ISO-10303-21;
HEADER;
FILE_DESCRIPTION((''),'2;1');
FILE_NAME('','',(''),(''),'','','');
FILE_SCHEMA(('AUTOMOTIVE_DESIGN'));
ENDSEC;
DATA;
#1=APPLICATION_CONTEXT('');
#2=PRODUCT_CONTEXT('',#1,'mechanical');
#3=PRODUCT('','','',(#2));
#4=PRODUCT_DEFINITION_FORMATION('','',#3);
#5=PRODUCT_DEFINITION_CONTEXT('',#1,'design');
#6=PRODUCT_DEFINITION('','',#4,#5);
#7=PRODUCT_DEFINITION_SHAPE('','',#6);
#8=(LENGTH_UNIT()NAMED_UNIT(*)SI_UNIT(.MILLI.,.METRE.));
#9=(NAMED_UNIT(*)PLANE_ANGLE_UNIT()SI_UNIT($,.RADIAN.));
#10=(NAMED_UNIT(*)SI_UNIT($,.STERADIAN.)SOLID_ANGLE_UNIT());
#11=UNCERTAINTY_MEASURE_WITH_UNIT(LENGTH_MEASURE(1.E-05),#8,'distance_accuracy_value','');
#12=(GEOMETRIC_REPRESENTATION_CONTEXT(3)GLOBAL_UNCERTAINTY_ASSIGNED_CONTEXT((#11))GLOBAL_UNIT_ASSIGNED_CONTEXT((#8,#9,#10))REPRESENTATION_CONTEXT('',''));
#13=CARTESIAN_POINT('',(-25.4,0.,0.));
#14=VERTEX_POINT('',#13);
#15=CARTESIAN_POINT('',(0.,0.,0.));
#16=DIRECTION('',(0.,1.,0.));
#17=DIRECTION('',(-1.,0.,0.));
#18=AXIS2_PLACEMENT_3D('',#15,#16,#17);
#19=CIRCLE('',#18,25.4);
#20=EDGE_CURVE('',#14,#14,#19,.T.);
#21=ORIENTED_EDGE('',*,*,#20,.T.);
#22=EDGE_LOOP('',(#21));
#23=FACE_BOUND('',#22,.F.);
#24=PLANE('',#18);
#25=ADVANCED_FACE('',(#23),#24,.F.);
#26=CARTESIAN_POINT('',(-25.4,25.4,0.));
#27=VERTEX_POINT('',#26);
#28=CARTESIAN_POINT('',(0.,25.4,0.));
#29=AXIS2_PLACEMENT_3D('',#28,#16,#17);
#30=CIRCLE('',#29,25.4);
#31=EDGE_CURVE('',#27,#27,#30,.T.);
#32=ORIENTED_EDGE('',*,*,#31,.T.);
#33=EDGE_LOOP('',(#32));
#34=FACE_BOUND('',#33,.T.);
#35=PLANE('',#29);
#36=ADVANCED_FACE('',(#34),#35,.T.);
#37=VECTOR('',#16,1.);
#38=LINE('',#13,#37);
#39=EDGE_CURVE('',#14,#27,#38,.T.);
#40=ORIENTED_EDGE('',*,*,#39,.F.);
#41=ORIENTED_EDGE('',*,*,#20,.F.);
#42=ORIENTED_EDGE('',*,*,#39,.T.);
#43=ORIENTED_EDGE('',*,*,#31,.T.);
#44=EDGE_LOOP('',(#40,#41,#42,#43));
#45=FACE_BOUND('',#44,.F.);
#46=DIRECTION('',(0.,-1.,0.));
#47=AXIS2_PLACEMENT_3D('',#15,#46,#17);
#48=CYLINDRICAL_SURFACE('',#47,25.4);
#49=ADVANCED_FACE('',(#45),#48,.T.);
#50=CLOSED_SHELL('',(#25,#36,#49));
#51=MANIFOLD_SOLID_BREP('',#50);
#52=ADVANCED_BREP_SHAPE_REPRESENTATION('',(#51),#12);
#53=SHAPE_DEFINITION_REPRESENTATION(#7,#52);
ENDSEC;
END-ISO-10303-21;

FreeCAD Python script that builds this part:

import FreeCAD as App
import Part
import Sketcher

V = App.Vector
Q = App.Units.Quantity

doc = App.newDocument("Part")
body = doc.addObject("PartDesign::Body", "Body")

# Sketch on XZ plane
sketch1 = doc.addObject("Sketcher::SketchObject", "Sketch")
body.addObject(sketch1)
sketch1.AttachmentSupport = (doc.XZ_Plane, [""])
sketch1.MapMode = "FlatFace"
sketch1.addGeometry(Part.Circle(V(0, 0, 0), V(0, 0, 1), 25.4), False)
sketch1.addConstraint([
    Sketcher.Constraint("Coincident", 0, 3, -1, 1),
    Sketcher.Constraint("Diameter", 0, Q("2 in")),
])
pad1 = doc.addObject("PartDesign::Pad", "Pad")
body.addObject(pad1)
pad1.Profile = sketch1
pad1.Length = Q("1 in")
pad1.Reversed = True

doc.recompute()
